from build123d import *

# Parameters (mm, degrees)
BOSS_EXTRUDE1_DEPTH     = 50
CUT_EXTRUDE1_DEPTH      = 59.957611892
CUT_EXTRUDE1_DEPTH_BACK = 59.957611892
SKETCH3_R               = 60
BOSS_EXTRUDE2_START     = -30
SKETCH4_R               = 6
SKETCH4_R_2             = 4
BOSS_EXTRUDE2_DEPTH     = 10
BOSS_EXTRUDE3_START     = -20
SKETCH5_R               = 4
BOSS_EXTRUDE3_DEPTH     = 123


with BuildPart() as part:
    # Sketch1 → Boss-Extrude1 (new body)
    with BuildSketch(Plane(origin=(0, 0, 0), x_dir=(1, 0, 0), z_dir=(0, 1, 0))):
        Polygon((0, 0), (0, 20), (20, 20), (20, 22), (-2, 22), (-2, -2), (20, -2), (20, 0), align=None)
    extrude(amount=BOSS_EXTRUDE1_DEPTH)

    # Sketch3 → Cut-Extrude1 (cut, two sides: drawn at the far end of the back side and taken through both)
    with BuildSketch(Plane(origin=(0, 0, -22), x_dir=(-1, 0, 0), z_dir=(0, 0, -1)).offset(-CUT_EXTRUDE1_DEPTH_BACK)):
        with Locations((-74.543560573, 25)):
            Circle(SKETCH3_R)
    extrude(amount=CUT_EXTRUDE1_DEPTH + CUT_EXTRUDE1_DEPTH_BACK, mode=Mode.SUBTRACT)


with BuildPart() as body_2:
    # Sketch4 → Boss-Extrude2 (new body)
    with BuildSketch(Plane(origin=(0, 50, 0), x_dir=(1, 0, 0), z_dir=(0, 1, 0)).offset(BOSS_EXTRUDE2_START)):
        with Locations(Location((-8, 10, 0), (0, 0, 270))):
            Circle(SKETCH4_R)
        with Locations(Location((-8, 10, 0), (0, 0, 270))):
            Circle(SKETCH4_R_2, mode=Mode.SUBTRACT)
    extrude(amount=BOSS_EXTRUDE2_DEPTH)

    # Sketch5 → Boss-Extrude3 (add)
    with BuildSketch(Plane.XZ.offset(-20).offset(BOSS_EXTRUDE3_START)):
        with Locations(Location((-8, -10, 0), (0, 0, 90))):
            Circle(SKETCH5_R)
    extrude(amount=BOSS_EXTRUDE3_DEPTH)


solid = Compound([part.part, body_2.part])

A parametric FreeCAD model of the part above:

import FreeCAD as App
import Part
import Sketcher


def add_polygon(sketch, points):
    """Adds a closed chain of lines whose ends are joined by coincident constraints."""
    first, n = sketch.GeometryCount, len(points)
    for a, b in zip(points, points[1:] + points[:1]):
        sketch.addGeometry(Part.LineSegment(App.Vector(*a, 0), App.Vector(*b, 0)), False)
    for i in range(n):
        sketch.addConstraint(Sketcher.Constraint("Coincident", first + i, 2, first + (i + 1) % n, 1))

doc = App.newDocument("Part")
body = doc.addObject("PartDesign::Body", "Body")

# Sketch on XZ plane
sketch1 = doc.addObject("Sketcher::SketchObject", "Sketch")
body.addObject(sketch1)
sketch1.AttachmentSupport = (doc.XZ_Plane, [""])
sketch1.MapMode = "FlatFace"
add_polygon(sketch1, [(0, 0), (0, -20), (20, -20), (20, -22), (-2, -22), (-2, 2), (20, 2), (20, 0)])  # lines 0-7
sketch1.addConstraint([
    Sketcher.Constraint("Vertical", 0),
    Sketcher.Constraint("Horizontal", 1),
    Sketcher.Constraint("Vertical", 2),
    Sketcher.Constraint("Horizontal", 3),
    Sketcher.Constraint("Vertical", 4),
    Sketcher.Constraint("Horizontal", 5),
    Sketcher.Constraint("Vertical", 6),
    Sketcher.Constraint("Horizontal", 7),
    Sketcher.Constraint("Coincident", 7, 2, -1, 1),
    Sketcher.Constraint("Vertical", 2, 2, 5, 2),
    Sketcher.Constraint("Equal", 7, 0),
    Sketcher.Constraint("Equal", 2, 6),
    Sketcher.Constraint("DistanceX", 1, 1, 1, 2, 20.0),
    Sketcher.Constraint("DistanceX", 3, 2, 3, 1, 22.0),
    Sketcher.Constraint("DistanceY", 2, 2, 2, 1, 2.0),
])
pad1 = doc.addObject("PartDesign::Pad", "Pad")
body.addObject(pad1)
pad1.Profile = sketch1
pad1.Length = 50
pad1.Reversed = True

# Sketch on XY plane
sketch2 = doc.addObject("Sketcher::SketchObject", "Sketch001")
body.addObject(sketch2)
sketch2.AttachmentSupport = (doc.XY_Plane, [""])
sketch2.MapMode = "FlatFace"
sketch2.AttachmentOffset = App.Placement(App.Vector(0, 0, -22), App.Rotation())
sketch2.addGeometry(Part.Circle(App.Vector(75, 25, 0), App.Vector(0, 0, 1), 60), False)
sketch2.addConstraint([
    Sketcher.Constraint("Diameter", 0, 120.0),
    Sketcher.Constraint("DistanceY", -1, 1, 0, 3, 25.0),
    Sketcher.Constraint("DistanceX", -1, 1, 0, 3, 74.543561),
])
pocket1 = doc.addObject("PartDesign::Pocket", "Pocket")
body.addObject(pocket1)
pocket1.Profile = sketch2
pocket1.Type = "ThroughAll"
pocket1.Midplane = True
body2 = doc.addObject("PartDesign::Body", "Body001")

# Sketch on XZ plane
sketch3 = doc.addObject("Sketcher::SketchObject", "Sketch002")
body2.addObject(sketch3)
sketch3.AttachmentSupport = (doc.getObject("XZ_Plane001"), [""])
sketch3.MapMode = "FlatFace"
sketch3.AttachmentOffset = App.Placement(App.Vector(0, 0, -20), App.Rotation())
sketch3.addGeometry([
    Part.Circle(App.Vector(-8, -10, 0), App.Vector(0, 0, 1), 6),
    Part.Circle(App.Vector(-8, -10, 0), App.Vector(0, 0, 1), 4),
], False)
sketch3.addConstraint([
    Sketcher.Constraint("Coincident", 1, 3, 0, 3),
    Sketcher.Constraint("Diameter", 0, 12.0),
    Sketcher.Constraint("Diameter", 1, 8.0),
    Sketcher.Constraint("DistanceX", 0, 3, -1, 1, 8.0),
    Sketcher.Constraint("DistanceY", 0, 3, -1, 1, 10.0),
])
pad2 = doc.addObject("PartDesign::Pad", "Pad001")
body2.addObject(pad2)
pad2.Profile = sketch3
pad2.Length = 10
pad2.Reversed = True

# Sketch on XZ plane
sketch4 = doc.addObject("Sketcher::SketchObject", "Sketch003")
body2.addObject(sketch4)
sketch4.AttachmentSupport = (doc.getObject("XZ_Plane001"), [""])
sketch4.MapMode = "FlatFace"
sketch4.AttachmentOffset = App.Placement(App.Vector(0, 0, -40), App.Rotation())
sketch4.addGeometry(Part.Circle(App.Vector(-8, -10, 0), App.Vector(0, 0, 1), 4), False)
sketch4.addConstraint([
    Sketcher.Constraint("Diameter", 0, 8.0),
    Sketcher.Constraint("DistanceX", 0, 3, -1, 1, 8.0),
    Sketcher.Constraint("DistanceY", 0, 3, -1, 1, 10.0),
])
pad3 = doc.addObject("PartDesign::Pad", "Pad002")
body2.addObject(pad3)
pad3.Profile = sketch4
pad3.Length = 123

doc.recompute()
